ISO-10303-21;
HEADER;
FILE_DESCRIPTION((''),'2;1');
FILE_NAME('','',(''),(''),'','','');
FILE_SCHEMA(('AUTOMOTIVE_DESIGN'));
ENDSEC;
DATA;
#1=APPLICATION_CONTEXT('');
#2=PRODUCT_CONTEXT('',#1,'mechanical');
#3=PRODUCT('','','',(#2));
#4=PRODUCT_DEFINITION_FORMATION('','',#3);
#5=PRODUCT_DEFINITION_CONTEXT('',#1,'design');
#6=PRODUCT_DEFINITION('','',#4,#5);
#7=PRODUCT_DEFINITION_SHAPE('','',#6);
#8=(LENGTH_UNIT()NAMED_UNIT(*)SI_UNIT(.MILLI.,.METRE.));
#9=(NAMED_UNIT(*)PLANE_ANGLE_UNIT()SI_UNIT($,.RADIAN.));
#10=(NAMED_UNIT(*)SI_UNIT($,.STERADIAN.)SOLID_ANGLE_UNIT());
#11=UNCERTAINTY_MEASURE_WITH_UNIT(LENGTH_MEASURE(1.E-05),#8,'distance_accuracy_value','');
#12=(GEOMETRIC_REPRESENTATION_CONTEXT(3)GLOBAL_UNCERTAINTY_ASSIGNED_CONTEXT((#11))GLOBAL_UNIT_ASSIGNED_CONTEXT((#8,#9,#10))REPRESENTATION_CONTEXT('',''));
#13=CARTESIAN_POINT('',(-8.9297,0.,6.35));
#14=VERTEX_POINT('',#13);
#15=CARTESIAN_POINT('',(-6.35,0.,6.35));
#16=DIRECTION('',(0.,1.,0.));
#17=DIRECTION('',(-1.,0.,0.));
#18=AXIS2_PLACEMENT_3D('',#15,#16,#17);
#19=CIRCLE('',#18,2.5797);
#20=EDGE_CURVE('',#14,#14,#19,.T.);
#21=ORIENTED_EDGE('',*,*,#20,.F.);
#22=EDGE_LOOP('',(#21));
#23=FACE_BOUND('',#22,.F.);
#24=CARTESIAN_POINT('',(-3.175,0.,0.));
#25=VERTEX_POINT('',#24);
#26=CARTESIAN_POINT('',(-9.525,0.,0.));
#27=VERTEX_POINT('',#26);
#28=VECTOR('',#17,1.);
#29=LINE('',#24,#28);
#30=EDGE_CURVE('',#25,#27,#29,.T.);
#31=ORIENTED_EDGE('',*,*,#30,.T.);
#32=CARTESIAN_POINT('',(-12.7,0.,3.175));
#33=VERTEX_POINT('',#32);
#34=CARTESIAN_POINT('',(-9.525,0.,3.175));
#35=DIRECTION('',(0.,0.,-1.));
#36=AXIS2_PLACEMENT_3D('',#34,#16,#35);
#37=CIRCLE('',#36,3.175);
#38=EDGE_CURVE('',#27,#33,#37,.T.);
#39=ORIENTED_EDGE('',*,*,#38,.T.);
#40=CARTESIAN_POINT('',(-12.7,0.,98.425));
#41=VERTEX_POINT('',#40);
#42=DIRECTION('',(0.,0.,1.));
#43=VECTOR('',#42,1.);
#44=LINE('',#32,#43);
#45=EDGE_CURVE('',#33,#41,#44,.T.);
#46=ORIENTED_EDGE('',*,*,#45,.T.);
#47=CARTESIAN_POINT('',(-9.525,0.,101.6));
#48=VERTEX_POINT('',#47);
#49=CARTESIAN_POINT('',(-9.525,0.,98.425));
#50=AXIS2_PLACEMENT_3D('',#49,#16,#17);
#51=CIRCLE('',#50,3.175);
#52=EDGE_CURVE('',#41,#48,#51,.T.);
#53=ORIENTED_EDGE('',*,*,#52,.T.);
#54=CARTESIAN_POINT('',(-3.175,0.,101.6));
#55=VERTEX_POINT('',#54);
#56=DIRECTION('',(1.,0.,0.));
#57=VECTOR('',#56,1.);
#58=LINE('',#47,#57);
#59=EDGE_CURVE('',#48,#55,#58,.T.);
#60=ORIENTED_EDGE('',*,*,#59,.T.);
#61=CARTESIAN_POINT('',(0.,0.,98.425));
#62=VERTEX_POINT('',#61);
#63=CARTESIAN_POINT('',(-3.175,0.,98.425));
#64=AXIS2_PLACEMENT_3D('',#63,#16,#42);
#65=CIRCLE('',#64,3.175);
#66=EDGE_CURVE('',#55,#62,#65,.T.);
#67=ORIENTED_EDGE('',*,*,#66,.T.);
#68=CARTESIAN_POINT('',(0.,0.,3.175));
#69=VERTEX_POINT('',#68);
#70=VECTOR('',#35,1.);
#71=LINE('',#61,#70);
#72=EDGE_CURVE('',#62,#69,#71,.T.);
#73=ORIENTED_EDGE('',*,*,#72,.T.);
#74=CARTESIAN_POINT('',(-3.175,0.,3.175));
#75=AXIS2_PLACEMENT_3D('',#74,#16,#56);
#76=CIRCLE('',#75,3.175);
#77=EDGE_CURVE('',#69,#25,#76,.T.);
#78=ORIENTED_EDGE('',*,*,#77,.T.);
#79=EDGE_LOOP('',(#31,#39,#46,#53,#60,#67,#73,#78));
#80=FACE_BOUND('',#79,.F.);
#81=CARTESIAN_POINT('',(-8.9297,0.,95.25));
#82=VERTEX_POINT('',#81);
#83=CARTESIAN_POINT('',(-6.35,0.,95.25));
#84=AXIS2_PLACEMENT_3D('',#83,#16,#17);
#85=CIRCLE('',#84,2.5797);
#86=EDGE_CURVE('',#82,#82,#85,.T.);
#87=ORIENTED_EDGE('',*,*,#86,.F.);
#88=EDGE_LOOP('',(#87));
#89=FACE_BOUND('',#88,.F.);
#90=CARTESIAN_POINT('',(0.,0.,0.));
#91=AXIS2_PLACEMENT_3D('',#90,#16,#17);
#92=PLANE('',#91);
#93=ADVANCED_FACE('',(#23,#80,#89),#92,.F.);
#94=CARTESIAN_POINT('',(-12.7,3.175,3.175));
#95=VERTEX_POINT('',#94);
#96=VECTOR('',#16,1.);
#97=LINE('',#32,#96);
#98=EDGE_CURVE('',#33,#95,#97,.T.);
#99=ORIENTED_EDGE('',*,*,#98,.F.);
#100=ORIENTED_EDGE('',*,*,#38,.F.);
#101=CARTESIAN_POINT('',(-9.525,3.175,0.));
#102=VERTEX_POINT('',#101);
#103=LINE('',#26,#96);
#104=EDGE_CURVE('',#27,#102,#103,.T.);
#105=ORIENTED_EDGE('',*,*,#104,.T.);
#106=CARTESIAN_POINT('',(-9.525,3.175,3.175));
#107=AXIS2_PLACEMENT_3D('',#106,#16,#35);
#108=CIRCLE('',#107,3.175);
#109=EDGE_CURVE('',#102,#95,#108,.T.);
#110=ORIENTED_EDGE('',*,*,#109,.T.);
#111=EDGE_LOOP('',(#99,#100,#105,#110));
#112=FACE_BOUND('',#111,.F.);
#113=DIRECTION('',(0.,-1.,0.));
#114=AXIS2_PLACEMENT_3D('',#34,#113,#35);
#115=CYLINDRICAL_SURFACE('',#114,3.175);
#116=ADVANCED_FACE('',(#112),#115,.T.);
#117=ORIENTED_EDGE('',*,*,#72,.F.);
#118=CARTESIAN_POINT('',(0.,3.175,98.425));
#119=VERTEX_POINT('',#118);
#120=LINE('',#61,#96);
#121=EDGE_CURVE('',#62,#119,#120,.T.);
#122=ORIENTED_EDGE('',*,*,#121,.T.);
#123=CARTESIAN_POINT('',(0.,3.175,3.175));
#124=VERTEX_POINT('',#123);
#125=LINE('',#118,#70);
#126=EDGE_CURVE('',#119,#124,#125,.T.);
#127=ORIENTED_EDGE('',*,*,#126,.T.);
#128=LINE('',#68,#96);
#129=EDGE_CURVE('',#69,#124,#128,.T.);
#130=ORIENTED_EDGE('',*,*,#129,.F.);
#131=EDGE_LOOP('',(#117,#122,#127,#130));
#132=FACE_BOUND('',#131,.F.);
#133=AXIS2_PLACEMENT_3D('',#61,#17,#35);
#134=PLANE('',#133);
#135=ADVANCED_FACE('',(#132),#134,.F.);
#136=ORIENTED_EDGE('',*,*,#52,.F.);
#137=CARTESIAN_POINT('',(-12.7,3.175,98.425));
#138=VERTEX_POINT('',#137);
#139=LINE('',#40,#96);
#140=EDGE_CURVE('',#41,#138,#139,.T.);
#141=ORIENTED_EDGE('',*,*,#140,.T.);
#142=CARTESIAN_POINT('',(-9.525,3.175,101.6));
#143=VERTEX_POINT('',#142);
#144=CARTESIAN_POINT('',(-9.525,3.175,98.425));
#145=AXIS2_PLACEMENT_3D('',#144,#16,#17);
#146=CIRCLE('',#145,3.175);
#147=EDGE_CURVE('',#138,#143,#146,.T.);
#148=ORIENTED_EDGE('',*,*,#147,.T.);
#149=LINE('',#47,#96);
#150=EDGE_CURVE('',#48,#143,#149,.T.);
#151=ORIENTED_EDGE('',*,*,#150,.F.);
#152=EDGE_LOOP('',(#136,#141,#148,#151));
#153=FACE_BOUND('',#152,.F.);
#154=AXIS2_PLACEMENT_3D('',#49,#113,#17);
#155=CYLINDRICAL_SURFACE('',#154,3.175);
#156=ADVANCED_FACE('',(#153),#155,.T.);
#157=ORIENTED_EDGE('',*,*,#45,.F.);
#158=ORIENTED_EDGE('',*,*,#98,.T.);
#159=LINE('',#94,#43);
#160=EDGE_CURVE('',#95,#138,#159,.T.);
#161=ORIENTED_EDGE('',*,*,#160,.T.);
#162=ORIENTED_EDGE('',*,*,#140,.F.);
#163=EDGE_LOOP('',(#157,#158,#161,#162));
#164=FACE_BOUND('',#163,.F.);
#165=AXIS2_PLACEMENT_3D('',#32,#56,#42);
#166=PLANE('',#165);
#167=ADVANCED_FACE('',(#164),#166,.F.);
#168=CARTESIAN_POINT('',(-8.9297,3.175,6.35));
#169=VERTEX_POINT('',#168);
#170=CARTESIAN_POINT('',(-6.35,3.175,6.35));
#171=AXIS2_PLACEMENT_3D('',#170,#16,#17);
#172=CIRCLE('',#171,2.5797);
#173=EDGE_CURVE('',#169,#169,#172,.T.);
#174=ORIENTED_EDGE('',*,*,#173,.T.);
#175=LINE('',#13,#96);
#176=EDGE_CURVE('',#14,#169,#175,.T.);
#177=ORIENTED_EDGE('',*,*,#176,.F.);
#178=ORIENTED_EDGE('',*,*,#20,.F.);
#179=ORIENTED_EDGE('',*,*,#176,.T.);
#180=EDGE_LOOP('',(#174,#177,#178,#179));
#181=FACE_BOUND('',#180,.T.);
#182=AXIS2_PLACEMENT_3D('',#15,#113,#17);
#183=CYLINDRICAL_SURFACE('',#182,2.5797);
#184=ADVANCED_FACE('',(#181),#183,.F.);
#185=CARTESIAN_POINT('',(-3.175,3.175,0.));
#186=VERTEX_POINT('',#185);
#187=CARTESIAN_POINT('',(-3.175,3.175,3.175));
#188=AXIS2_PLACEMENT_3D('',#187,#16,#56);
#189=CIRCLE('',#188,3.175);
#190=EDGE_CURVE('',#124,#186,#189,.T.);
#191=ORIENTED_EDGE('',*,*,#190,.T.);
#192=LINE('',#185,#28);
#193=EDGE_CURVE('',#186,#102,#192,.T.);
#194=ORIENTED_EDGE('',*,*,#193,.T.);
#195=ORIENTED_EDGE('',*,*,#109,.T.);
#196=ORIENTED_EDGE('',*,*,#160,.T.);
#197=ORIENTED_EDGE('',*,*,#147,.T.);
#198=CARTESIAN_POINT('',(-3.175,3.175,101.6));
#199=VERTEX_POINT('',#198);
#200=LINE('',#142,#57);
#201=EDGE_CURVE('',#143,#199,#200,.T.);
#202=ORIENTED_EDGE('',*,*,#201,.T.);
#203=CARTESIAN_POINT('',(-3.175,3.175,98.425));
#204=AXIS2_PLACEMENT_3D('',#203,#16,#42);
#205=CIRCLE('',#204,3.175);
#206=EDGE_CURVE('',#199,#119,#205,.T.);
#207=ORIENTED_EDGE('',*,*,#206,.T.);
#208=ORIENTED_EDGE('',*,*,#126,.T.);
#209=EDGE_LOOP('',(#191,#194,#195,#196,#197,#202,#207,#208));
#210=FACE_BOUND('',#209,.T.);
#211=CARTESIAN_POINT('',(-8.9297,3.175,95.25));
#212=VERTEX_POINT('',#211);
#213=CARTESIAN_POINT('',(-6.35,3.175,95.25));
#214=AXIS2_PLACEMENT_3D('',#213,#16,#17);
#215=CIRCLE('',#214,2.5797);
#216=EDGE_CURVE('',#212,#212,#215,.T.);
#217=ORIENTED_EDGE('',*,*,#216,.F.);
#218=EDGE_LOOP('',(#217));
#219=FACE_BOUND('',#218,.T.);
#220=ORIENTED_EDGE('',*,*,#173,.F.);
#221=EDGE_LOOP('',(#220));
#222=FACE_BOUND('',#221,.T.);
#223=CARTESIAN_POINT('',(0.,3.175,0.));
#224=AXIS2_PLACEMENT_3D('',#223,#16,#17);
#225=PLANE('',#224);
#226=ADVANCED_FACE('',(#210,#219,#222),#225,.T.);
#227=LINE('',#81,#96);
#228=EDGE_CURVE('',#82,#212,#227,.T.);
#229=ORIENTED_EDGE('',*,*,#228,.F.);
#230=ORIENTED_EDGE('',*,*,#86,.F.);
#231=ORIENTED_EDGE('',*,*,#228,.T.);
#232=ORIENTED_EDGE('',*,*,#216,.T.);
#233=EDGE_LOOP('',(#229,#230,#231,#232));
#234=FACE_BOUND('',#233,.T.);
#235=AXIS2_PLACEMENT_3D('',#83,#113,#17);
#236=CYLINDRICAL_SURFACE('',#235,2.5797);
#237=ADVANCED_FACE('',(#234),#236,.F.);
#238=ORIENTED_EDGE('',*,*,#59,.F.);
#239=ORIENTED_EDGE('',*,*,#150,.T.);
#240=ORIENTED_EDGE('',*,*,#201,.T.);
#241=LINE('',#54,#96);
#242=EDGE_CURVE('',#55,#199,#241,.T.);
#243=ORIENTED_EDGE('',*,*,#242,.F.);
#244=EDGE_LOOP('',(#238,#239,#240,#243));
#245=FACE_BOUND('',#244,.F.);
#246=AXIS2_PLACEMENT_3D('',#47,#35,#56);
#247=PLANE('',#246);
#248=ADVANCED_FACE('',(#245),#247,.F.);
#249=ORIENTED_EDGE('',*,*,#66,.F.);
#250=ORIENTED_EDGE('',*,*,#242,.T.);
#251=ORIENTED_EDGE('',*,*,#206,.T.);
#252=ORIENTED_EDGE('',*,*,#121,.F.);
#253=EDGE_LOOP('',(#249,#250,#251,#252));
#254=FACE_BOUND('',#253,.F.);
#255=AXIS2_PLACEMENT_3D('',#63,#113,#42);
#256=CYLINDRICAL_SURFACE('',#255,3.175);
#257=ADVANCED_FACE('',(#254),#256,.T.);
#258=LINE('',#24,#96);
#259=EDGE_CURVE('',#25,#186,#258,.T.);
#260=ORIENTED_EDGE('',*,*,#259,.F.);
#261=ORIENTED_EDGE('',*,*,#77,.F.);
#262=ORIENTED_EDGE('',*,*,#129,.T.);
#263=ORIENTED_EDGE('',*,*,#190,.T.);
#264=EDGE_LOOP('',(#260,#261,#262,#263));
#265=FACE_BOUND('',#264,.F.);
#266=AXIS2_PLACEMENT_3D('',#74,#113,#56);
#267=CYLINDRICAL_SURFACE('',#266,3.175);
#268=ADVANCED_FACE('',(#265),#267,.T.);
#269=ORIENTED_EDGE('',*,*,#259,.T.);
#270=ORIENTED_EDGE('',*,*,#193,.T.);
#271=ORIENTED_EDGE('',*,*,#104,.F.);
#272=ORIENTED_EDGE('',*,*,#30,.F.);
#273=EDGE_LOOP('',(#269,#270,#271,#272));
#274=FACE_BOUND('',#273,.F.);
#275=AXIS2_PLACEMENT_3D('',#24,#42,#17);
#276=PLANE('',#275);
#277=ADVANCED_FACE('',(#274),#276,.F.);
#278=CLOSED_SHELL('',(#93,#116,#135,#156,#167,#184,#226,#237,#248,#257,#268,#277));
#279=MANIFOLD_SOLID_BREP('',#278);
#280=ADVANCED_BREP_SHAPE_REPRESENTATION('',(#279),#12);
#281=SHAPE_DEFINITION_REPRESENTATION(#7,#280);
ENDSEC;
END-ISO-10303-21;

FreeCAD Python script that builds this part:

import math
import FreeCAD as App
import Part
import Sketcher
from FreeCAD import Vector
Q = App.Units.Quantity

doc = App.newDocument("Part")
body = doc.addObject("PartDesign::Body", "Body")

sketch1 = body.newObject("Sketcher::SketchObject", "Sketch")
sketch1.AttachmentSupport = (doc.getObject("XZ_Plane"), [""])
sketch1.MapMode = "FlatFace"
sketch1.addGeometry(Part.ArcOfCircle(Part.Circle(Vector(-3.2, 3.2, 0), Vector(0, 0, 1), 3.2), math.radians(-90), math.radians(0)), False)
sketch1.addGeometry(Part.LineSegment(Vector(-3.2, 0, 0), Vector(-9.5, 0, 0)), False)
sketch1.addGeometry(Part.ArcOfCircle(Part.Circle(Vector(-9.5, 3.2, 0), Vector(0, 0, 1), 3.2), math.radians(180), math.radians(270)), False)
sketch1.addGeometry(Part.LineSegment(Vector(-12.7, 3.2, 0), Vector(-12.7, 98.4, 0)), False)
sketch1.addGeometry(Part.ArcOfCircle(Part.Circle(Vector(-9.5, 98.4, 0), Vector(0, 0, 1), 3.2), math.radians(90), math.radians(180)), False)
sketch1.addGeometry(Part.LineSegment(Vector(-9.5, 101.6, 0), Vector(-3.2, 101.6, 0)), False)
sketch1.addGeometry(Part.ArcOfCircle(Part.Circle(Vector(-3.2, 98.4, 0), Vector(0, 0, 1), 3.2), math.radians(0), math.radians(90)), False)
sketch1.addGeometry(Part.LineSegment(Vector(0, 98.4, 0), Vector(0, 3.2, 0)), False)
sketch1.addGeometry(Part.Circle(Vector(-6.3, 6.3, 0), Vector(0, 0, 1), 2.6), False)
sketch1.addGeometry(Part.Circle(Vector(-6.3, 95.2, 0), Vector(0, 0, 1), 2.6), False)
sketch1.addConstraint(Sketcher.Constraint("Tangent", 0, 1, 1, 1))
sketch1.addConstraint(Sketcher.Constraint("Tangent", 1, 2, 2, 2))
sketch1.addConstraint(Sketcher.Constraint("Tangent", 2, 1, 3, 1))
sketch1.addConstraint(Sketcher.Constraint("Tangent", 3, 2, 4, 2))
sketch1.addConstraint(Sketcher.Constraint("Tangent", 4, 1, 5, 1))
sketch1.addConstraint(Sketcher.Constraint("Tangent", 5, 2, 6, 2))
sketch1.addConstraint(Sketcher.Constraint("Tangent", 6, 1, 7, 1))
sketch1.addConstraint(Sketcher.Constraint("Tangent", 7, 2, 0, 2))
sketch1.addConstraint(Sketcher.Constraint("Horizontal", 1))
sketch1.addConstraint(Sketcher.Constraint("Vertical", 3))
sketch1.addConstraint(Sketcher.Constraint("Horizontal", 5))
sketch1.addConstraint(Sketcher.Constraint("Vertical", 7))
sketch1.addConstraint(Sketcher.Constraint("Equal", 0, 2))
sketch1.addConstraint(Sketcher.Constraint("Equal", 2, 4))
sketch1.addConstraint(Sketcher.Constraint("Equal", 4, 6))
sketch1.addConstraint(Sketcher.Constraint("Equal", 8, 9))
sketch1.addConstraint(Sketcher.Constraint("PointOnObject", 0, 1, -1))
sketch1.addConstraint(Sketcher.Constraint("PointOnObject", 6, 1, -2))
sketch1.addConstraint(Sketcher.Constraint("Vertical", 8, 3, 9, 3))
sketch1.addConstraint(Sketcher.Constraint("Diameter", 8, Q("0.203126 in")))
sketch1.addConstraint(Sketcher.Constraint("DistanceY", -1, 1, 4, 1, Q("4 in")))
sketch1.addConstraint(Sketcher.Constraint("Radius", 0, Q("0.125 in")))
sketch1.addConstraint(Sketcher.Constraint("DistanceX", 1, 2, 1, 1, Q("0.25 in")))
sketch1.addConstraint(Sketcher.Constraint("DistanceX", 8, 3, -1, 1, Q("0.25 in")))
sketch1.addConstraint(Sketcher.Constraint("DistanceY", -1, 1, 8, 3, Q("0.25 in")))
sketch1.addConstraint(Sketcher.Constraint("DistanceY", 9, 3, 4, 1, Q("0.25 in")))
pad1 = body.newObject("PartDesign::Pad", "Pad")
pad1.Profile = sketch1
pad1.Length = Q("0.125 in")
pad1.Reversed = True

doc.recompute()
